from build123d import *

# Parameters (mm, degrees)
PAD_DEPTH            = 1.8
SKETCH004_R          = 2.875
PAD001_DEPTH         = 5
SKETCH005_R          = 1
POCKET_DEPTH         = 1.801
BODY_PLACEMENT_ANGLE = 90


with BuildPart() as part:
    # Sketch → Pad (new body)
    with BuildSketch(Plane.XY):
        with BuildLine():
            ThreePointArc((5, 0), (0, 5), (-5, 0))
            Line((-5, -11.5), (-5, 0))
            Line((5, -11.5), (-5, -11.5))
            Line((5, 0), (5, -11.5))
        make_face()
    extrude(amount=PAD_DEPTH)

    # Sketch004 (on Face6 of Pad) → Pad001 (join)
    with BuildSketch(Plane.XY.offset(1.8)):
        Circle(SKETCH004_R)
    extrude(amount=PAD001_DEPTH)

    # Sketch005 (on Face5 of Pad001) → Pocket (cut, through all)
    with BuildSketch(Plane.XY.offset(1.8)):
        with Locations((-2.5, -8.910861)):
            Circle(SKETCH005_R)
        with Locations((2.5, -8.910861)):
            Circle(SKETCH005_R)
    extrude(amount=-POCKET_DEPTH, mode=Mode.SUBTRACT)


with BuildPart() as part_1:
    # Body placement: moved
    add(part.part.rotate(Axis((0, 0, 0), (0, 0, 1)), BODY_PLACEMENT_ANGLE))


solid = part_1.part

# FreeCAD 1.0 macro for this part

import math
import FreeCAD as App
import Part
import Sketcher
from FreeCAD import Vector

doc = App.newDocument("Part")
body = doc.addObject("PartDesign::Body", "Body")

# Sketch on XY plane
sketch1 = doc.addObject("Sketcher::SketchObject", "Sketch")
body.addObject(sketch1)
sketch1.AttachmentSupport = (doc.XY_Plane, [""])
sketch1.MapMode = "FlatFace"
sketch1.addGeometry([
    Part.ArcOfCircle(Part.Circle(Vector(0, 0, 0), Vector(0, 0, 1), 5), math.radians(0), math.radians(180)),
    Part.LineSegment(Vector(-5, 0, 0), Vector(-5, -12, 0)),
    Part.LineSegment(Vector(-5, -12, 0), Vector(5, -12, 0)),
    Part.LineSegment(Vector(5, -12, 0), Vector(5, 0, 0)),
], False)
sketch1.addConstraint([
    Sketcher.Constraint("Tangent", 0, 2, 1, 1),
    Sketcher.Constraint("Coincident", 1, 2, 2, 1),
    Sketcher.Constraint("Coincident", 2, 2, 3, 1),
    Sketcher.Constraint("Tangent", 3, 2, 0, 1),
    Sketcher.Constraint("Vertical", 1),
    Sketcher.Constraint("Horizontal", 2),
    Sketcher.Constraint("Vertical", 3),
    Sketcher.Constraint("Coincident", 0, 3, -1, 1),
    Sketcher.Constraint("Radius", 0, 5.0),
    Sketcher.Constraint("DistanceY", 1, 2, 1, 1, 11.5),
])
pad1 = doc.addObject("PartDesign::Pad", "Pad")
body.addObject(pad1)
pad1.Profile = sketch1
pad1.Length = 1.8

# Sketch on XY plane
sketch2 = doc.addObject("Sketcher::SketchObject", "Sketch001")
body.addObject(sketch2)
sketch2.AttachmentSupport = (doc.XY_Plane, [""])
sketch2.MapMode = "FlatFace"
sketch2.AttachmentOffset = App.Placement(Vector(0, 0, 1.8), App.Rotation())
sketch2.addGeometry(Part.Circle(Vector(0, 0, 0), Vector(0, 0, 1), 2.9), False)
sketch2.addConstraint([
    Sketcher.Constraint("Coincident", 0, 3, -1, 1),
    Sketcher.Constraint("Diameter", 0, 5.75),
])
pad2 = doc.addObject("PartDesign::Pad", "Pad001")
body.addObject(pad2)
pad2.Profile = sketch2
pad2.Length = 5

# Sketch on XY plane
sketch3 = doc.addObject("Sketcher::SketchObject", "Sketch002")
body.addObject(sketch3)
sketch3.AttachmentSupport = (doc.XY_Plane, [""])
sketch3.MapMode = "FlatFace"
sketch3.AttachmentOffset = App.Placement(Vector(0, 0, 1.8), App.Rotation())
sketch3.addGeometry([
    Part.Circle(Vector(-2.5, -8.9, 0), Vector(0, 0, 1), 1),
    Part.Circle(Vector(2.5, -8.9, 0), Vector(0, 0, 1), 1),
], False)
sketch3.addConstraint([
    Sketcher.Constraint("Equal", 0, 1),
    Sketcher.Constraint("Symmetric", 0, 3, 1, 3, -2),
    Sketcher.Constraint("Diameter", 0, 2.0),
    Sketcher.Constraint("DistanceX", 0, 3, 1, 3, 5.0),
    Sketcher.Constraint("DistanceY", 0, 3, -1, 1, 8.910861),
])
pocket1 = doc.addObject("PartDesign::Pocket", "Pocket")
body.addObject(pocket1)
pocket1.Profile = sketch3
pocket1.Type = "ThroughAll"
body2 = doc.addObject("PartDesign::Body", "Body001")
doc.recompute()

body.Placement = App.Placement(Vector(0, 0, 0), App.Rotation(Vector(0, 0, 1), 90))
boolean = doc.addObject("PartDesign::Boolean", "Boolean")
body2.addObject(boolean)
boolean.Type = "Fuse"
boolean.addObjects([body])

doc.recompute()
